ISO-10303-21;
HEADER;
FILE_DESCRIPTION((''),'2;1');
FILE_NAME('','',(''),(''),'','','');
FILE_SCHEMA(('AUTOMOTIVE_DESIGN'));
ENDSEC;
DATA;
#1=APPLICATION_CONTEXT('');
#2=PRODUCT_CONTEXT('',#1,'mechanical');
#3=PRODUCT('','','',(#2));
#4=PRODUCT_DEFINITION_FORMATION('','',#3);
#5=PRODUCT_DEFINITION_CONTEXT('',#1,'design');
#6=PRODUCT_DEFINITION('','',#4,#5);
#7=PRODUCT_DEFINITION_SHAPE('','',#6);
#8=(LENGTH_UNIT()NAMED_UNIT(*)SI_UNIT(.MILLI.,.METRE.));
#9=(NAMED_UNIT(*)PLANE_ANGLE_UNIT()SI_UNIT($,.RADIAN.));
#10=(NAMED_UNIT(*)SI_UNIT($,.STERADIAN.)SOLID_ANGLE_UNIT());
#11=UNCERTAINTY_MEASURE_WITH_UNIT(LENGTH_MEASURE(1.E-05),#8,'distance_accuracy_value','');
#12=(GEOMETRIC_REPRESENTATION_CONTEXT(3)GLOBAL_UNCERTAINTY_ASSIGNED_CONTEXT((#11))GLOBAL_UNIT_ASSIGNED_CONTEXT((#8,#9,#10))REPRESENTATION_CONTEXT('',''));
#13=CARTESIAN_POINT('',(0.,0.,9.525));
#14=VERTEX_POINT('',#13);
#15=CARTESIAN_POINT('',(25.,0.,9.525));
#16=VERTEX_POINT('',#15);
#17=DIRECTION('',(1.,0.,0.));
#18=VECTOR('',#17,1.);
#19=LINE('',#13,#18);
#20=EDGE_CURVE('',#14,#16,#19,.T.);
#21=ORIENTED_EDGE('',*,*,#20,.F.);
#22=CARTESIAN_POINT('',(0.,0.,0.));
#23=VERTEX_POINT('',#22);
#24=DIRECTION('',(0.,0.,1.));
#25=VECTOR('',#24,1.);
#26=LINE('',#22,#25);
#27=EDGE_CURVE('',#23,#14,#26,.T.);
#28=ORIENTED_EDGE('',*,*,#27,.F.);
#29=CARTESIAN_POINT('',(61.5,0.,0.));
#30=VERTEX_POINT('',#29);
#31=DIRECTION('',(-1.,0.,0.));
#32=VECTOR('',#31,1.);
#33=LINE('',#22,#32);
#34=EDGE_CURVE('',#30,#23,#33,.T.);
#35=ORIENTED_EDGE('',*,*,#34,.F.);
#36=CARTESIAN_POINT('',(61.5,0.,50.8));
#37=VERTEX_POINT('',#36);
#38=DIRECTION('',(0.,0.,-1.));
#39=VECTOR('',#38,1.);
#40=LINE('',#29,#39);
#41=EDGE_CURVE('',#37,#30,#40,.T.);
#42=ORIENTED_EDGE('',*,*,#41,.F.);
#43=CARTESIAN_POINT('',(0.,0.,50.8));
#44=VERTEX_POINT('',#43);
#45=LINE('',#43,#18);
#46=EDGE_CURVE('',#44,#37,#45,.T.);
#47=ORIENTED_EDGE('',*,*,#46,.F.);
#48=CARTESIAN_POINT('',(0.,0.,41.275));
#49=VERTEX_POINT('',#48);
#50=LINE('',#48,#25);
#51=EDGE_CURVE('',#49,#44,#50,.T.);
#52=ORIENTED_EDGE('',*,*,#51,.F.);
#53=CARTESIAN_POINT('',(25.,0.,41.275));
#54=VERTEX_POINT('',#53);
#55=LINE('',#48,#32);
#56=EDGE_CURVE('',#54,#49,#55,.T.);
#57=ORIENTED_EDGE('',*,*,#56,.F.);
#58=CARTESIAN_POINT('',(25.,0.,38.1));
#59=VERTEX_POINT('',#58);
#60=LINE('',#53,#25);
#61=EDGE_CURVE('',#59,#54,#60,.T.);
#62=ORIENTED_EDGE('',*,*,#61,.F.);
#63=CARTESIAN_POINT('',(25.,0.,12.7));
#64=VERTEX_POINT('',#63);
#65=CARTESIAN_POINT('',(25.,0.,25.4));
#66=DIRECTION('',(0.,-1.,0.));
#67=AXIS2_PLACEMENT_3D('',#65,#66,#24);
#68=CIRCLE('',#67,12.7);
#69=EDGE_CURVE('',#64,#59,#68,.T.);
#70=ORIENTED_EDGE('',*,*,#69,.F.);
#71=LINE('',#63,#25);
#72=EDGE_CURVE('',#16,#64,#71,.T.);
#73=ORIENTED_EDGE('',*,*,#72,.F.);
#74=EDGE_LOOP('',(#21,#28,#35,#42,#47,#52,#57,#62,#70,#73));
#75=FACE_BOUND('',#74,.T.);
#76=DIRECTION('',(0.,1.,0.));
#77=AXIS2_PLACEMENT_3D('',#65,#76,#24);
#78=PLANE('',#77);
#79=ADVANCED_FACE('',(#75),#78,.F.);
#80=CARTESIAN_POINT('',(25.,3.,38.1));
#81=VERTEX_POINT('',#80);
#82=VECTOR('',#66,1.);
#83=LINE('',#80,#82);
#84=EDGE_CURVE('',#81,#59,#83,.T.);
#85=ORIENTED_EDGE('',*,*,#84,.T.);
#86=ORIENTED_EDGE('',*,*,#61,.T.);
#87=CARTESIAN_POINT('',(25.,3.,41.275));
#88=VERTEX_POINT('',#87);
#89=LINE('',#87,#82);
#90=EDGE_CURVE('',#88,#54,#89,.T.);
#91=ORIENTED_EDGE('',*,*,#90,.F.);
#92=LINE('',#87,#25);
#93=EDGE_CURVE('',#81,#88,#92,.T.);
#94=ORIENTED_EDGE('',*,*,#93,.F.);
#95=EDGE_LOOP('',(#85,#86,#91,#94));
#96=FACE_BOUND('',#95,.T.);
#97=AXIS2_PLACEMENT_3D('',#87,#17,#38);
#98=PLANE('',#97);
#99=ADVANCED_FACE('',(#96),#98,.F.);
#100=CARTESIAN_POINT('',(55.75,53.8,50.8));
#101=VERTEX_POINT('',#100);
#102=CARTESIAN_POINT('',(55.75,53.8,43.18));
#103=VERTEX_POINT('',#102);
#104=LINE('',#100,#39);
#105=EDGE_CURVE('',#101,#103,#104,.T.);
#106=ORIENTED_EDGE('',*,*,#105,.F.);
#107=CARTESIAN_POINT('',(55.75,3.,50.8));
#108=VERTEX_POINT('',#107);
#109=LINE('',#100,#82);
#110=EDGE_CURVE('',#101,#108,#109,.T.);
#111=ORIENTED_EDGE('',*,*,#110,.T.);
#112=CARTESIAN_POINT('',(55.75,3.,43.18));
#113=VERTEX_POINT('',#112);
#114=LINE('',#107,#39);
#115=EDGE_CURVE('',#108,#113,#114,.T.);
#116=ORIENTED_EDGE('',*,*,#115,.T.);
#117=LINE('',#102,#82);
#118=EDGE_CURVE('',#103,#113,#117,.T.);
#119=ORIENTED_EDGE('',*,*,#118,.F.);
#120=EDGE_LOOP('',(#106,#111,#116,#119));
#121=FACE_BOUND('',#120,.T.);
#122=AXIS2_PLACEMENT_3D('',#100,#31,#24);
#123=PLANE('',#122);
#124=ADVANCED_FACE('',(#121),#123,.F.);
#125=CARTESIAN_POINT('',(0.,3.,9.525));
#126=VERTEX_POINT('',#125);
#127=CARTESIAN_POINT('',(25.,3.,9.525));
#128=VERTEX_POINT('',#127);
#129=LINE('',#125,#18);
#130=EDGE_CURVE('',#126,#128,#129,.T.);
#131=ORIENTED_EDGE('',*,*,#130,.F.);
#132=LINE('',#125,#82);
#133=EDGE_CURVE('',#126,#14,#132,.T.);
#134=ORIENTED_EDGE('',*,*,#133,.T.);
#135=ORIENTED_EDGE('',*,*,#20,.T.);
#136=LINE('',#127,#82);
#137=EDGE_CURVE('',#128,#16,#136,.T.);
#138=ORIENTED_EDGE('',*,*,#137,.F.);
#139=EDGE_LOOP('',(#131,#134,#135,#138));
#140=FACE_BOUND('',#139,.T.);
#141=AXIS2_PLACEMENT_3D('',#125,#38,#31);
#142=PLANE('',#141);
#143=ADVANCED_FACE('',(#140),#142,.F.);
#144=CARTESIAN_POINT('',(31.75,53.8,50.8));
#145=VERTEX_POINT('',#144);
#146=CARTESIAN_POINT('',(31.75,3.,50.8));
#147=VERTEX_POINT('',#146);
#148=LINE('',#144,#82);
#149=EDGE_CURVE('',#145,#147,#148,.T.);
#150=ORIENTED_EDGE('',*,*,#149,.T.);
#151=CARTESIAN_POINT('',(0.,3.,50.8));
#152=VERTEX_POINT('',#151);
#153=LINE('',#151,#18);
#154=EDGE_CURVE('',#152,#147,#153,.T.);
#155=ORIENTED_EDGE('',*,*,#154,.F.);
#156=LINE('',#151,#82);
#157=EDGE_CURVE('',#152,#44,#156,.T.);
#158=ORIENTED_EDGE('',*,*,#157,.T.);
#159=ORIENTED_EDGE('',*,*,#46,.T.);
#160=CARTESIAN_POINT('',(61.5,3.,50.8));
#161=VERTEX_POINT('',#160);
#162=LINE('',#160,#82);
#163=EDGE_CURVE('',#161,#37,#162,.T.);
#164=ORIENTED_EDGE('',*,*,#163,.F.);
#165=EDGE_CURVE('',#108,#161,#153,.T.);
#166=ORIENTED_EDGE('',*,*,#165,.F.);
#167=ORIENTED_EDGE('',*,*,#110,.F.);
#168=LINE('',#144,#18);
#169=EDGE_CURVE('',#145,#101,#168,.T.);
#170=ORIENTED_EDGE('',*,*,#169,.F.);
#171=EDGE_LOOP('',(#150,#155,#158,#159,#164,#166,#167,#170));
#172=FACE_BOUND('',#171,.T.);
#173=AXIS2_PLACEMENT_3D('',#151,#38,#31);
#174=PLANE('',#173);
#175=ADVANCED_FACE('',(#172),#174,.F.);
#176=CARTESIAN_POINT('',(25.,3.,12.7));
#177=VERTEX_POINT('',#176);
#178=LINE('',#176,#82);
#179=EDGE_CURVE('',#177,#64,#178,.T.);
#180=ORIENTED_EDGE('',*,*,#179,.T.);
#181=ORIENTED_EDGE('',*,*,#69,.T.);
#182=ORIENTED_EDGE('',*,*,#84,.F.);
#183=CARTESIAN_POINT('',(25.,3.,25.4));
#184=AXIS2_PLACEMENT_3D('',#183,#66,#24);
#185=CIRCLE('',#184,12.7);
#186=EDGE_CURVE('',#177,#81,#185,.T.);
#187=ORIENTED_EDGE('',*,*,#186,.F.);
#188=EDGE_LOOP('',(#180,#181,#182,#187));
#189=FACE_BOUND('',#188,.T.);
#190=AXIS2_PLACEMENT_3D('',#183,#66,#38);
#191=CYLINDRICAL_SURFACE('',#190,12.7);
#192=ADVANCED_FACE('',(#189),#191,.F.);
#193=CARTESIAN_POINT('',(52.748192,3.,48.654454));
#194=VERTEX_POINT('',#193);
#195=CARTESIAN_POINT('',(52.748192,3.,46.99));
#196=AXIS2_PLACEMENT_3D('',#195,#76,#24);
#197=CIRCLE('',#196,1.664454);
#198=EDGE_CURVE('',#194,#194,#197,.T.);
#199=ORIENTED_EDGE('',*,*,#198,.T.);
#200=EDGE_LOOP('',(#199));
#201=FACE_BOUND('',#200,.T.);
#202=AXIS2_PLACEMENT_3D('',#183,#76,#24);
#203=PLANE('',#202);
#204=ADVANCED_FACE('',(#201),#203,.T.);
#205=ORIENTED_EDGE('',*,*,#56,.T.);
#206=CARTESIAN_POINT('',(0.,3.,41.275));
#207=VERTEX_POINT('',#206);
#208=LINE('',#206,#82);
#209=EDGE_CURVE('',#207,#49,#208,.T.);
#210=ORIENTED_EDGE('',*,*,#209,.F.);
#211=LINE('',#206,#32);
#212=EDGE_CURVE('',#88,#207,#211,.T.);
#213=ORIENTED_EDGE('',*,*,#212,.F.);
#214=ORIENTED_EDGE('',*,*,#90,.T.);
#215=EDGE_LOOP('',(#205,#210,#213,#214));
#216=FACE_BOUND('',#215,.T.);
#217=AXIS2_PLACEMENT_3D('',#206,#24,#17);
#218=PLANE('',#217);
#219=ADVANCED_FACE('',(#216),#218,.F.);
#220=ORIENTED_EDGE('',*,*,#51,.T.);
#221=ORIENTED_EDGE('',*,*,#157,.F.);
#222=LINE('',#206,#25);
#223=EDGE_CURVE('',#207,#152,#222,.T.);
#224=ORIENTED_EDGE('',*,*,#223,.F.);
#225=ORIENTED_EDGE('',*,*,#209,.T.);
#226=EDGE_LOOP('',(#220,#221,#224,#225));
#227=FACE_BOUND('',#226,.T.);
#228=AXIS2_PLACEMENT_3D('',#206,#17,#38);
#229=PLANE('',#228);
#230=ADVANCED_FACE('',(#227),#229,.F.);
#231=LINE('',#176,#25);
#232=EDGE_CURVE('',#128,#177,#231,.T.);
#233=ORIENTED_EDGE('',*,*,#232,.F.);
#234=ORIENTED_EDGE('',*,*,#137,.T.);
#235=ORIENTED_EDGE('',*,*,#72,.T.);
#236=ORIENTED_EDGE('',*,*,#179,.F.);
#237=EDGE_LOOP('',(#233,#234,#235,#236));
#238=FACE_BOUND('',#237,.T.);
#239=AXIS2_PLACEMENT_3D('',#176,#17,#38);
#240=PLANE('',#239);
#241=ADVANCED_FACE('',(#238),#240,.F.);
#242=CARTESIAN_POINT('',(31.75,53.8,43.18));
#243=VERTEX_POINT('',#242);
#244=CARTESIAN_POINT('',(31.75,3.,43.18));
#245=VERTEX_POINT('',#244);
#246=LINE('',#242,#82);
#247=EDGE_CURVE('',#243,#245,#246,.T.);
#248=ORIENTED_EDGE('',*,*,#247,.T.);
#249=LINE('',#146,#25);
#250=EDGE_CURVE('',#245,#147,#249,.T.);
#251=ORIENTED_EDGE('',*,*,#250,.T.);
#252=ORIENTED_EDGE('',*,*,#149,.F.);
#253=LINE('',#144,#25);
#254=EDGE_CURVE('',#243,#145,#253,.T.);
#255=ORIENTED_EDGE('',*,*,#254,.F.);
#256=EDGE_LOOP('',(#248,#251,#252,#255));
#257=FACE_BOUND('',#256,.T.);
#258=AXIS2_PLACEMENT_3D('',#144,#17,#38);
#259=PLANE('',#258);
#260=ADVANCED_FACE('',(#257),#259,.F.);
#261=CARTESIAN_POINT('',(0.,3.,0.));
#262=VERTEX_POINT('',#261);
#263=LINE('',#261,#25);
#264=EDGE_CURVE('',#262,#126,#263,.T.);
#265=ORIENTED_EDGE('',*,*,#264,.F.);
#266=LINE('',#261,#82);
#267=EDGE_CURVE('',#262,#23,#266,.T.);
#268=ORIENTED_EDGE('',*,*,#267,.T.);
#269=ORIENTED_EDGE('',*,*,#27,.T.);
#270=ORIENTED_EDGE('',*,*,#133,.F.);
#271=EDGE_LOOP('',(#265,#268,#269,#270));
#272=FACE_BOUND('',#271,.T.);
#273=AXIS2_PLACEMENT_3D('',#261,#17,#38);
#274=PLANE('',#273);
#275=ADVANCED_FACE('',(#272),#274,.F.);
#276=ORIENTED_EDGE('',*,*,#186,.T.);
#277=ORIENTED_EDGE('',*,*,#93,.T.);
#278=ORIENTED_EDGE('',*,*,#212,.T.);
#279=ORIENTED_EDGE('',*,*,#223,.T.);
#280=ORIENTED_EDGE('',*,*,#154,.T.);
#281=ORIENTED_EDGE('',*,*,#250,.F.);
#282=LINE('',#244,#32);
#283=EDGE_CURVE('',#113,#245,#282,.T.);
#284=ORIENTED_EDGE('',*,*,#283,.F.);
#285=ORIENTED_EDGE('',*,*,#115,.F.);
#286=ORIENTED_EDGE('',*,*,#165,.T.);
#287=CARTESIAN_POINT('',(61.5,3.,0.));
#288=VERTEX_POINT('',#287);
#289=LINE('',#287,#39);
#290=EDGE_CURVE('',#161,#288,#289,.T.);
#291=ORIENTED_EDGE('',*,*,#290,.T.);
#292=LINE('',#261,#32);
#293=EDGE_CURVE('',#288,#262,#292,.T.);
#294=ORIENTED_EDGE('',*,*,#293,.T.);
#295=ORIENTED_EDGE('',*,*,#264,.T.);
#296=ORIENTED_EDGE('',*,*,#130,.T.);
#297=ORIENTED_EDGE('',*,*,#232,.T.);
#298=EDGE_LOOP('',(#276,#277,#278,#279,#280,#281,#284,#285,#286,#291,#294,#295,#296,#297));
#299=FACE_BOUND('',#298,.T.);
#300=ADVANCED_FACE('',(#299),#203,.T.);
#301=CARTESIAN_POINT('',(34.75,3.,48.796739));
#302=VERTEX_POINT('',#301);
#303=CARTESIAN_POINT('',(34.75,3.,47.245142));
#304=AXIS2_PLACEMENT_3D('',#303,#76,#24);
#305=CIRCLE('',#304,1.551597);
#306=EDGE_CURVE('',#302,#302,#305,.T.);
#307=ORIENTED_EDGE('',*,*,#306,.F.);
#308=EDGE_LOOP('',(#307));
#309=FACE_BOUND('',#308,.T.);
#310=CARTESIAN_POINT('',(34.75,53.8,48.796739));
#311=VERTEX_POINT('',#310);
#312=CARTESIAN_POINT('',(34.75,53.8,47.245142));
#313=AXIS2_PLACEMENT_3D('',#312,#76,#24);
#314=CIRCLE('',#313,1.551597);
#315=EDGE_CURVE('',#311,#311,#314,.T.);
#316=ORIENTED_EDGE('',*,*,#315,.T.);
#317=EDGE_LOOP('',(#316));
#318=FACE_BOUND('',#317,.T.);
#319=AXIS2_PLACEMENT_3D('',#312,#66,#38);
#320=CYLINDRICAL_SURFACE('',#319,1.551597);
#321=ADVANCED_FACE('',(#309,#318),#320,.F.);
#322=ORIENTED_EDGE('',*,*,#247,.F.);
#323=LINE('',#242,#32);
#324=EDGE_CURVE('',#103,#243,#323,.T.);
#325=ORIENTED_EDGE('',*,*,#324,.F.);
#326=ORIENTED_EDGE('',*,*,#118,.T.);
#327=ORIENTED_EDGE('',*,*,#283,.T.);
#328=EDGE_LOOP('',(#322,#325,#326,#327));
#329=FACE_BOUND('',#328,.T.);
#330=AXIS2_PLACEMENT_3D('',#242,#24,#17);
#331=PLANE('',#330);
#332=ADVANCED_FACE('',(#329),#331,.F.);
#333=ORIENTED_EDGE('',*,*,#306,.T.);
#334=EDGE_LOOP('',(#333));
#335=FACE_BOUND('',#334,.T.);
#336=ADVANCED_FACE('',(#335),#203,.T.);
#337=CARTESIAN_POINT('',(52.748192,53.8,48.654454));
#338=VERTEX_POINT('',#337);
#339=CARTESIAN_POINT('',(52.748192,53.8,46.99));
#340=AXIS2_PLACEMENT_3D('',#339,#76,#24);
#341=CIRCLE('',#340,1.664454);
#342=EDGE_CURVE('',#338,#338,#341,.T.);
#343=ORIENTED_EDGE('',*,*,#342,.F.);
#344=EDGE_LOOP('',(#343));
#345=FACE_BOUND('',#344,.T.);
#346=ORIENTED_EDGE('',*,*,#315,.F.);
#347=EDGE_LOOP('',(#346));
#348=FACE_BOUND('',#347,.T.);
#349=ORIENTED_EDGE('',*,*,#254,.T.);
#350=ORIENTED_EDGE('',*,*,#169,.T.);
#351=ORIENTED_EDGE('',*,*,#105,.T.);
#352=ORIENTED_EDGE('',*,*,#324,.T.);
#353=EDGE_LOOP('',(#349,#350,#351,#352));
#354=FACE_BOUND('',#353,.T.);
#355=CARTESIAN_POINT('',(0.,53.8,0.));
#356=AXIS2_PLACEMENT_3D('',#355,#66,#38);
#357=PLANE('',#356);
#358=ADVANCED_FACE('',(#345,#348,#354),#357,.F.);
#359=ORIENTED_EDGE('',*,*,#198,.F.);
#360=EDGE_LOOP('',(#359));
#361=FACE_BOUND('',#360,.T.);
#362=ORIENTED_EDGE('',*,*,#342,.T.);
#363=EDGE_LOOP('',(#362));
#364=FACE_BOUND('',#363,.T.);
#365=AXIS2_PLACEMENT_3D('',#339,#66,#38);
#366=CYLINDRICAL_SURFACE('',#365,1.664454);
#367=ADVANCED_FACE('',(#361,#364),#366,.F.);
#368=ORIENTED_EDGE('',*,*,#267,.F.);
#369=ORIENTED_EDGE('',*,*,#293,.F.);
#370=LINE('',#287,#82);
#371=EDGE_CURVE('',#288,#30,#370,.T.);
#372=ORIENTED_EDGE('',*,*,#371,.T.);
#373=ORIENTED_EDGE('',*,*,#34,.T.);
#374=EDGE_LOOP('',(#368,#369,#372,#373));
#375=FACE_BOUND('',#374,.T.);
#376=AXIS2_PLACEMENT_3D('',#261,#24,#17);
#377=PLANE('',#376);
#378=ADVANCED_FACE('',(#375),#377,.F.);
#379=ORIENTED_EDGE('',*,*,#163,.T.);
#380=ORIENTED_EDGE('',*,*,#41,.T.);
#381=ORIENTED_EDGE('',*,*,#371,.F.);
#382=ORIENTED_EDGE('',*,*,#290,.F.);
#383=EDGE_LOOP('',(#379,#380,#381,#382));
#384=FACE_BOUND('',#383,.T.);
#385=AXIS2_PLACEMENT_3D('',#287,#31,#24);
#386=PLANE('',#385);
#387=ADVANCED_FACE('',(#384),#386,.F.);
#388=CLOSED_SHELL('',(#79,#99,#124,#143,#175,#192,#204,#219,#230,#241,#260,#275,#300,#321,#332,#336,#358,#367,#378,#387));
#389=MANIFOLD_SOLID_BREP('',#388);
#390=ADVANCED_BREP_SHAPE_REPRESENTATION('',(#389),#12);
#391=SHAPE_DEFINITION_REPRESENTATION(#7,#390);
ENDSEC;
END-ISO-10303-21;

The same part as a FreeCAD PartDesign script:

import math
import FreeCAD as App
import Part
import Sketcher

V = App.Vector
Q = App.Units.Quantity


def add_polygon(sketch, points):
    """Adds a closed chain of lines whose ends are joined by coincident constraints."""
    first, n = sketch.GeometryCount, len(points)
    for a, b in zip(points, points[1:] + points[:1]):
        sketch.addGeometry(Part.LineSegment(App.Vector(*a, 0), App.Vector(*b, 0)), False)
    for i in range(n):
        sketch.addConstraint(Sketcher.Constraint("Coincident", first + i, 2, first + (i + 1) % n, 1))

doc = App.newDocument("Part")
body = doc.addObject("PartDesign::Body", "Body")

sketch1 = body.newObject("Sketcher::SketchObject", "Sketch")
sketch1.AttachmentSupport = (doc.getObject("XZ_Plane"), [""])
sketch1.MapMode = "FlatFace"
sketch1.addGeometry(Part.LineSegment(V(61.5, 0, 0), V(0, 0, 0)), False)
sketch1.addGeometry(Part.LineSegment(V(0, 0, 0), V(0, 9.5, 0)), False)
sketch1.addGeometry(Part.LineSegment(V(0, 9.5, 0), V(25, 9.5, 0)), False)
sketch1.addGeometry(Part.LineSegment(V(25, 9.5, 0), V(25, 12.7, 0)), False)
sketch1.addGeometry(Part.ArcOfCircle(Part.Circle(V(25, 25.4, 0), V(0, 0, 1), 12.7), math.radians(-90), math.radians(90)), False)
sketch1.addGeometry(Part.LineSegment(V(25, 38.1, 0), V(25, 41.3, 0)), False)
sketch1.addGeometry(Part.LineSegment(V(25, 41.3, 0), V(0, 41.3, 0)), False)
sketch1.addGeometry(Part.LineSegment(V(0, 41.3, 0), V(0, 50.8, 0)), False)
sketch1.addGeometry(Part.LineSegment(V(0, 50.8, 0), V(61.5, 50.8, 0)), False)
sketch1.addGeometry(Part.LineSegment(V(61.5, 50.8, 0), V(61.5, 0, 0)), False)
sketch1.addConstraint(Sketcher.Constraint("Coincident", 0, 2, 1, 1))
sketch1.addConstraint(Sketcher.Constraint("Coincident", 1, 2, 2, 1))
sketch1.addConstraint(Sketcher.Constraint("Coincident", 2, 2, 3, 1))
sketch1.addConstraint(Sketcher.Constraint("Coincident", 3, 2, 4, 1))
sketch1.addConstraint(Sketcher.Constraint("Coincident", 4, 2, 5, 1))
sketch1.addConstraint(Sketcher.Constraint("Coincident", 5, 2, 6, 1))
sketch1.addConstraint(Sketcher.Constraint("Coincident", 6, 2, 7, 1))
sketch1.addConstraint(Sketcher.Constraint("Coincident", 7, 2, 8, 1))
sketch1.addConstraint(Sketcher.Constraint("Coincident", 8, 2, 9, 1))
sketch1.addConstraint(Sketcher.Constraint("Coincident", 9, 2, 0, 1))
sketch1.addConstraint(Sketcher.Constraint("Horizontal", 0))
sketch1.addConstraint(Sketcher.Constraint("Vertical", 1))
sketch1.addConstraint(Sketcher.Constraint("Horizontal", 2))
sketch1.addConstraint(Sketcher.Constraint("Vertical", 3))
sketch1.addConstraint(Sketcher.Constraint("Vertical", 5))
sketch1.addConstraint(Sketcher.Constraint("Horizontal", 6))
sketch1.addConstraint(Sketcher.Constraint("Vertical", 7))
sketch1.addConstraint(Sketcher.Constraint("Horizontal", 8))
sketch1.addConstraint(Sketcher.Constraint("Vertical", 9))
sketch1.addConstraint(Sketcher.Constraint("Coincident", 0, 2, -1, 1))
sketch1.addConstraint(Sketcher.Constraint("PointOnObject", 6, 2, -2))
sketch1.addConstraint(Sketcher.Constraint("Vertical", 4, 3, 2, 2))
sketch1.addConstraint(Sketcher.Constraint("Vertical", 3, 2, 4, 2))
sketch1.addConstraint(Sketcher.Constraint("Equal", 3, 5))
sketch1.addConstraint(Sketcher.Constraint("Equal", 1, 7))
sketch1.addConstraint(Sketcher.Constraint("Radius", 4, Q("0.5 in")))
sketch1.addConstraint(Sketcher.Constraint("DistanceY", 9, 2, 9, 1, Q("2 in")))
sketch1.addConstraint(Sketcher.Constraint("DistanceY", 1, 1, 1, 2, Q("0.375 in")))
sketch1.addConstraint(Sketcher.Constraint("DistanceX", 0, 2, 0, 1, 61.5))
sketch1.addConstraint(Sketcher.Constraint("DistanceX", 2, 1, 2, 2, 25.0))
pad1 = body.newObject("PartDesign::Pad", "Pad")
pad1.Profile = sketch1
pad1.Length = 3
pad1.Reversed = True

sketch2 = body.newObject("Sketcher::SketchObject", "Sketch001")
sketch2.AttachmentSupport = (doc.getObject("XZ_Plane"), [""])
sketch2.MapMode = "FlatFace"
sketch2.AttachmentOffset = App.Placement(V(0, 0, -3), App.Rotation())
add_polygon(sketch2, [(31.8, 43.2), (31.8, 50.8), (55.8, 50.8), (55.8, 43.2)])
sketch2.addGeometry(Part.Circle(V(34.8, 47.2, 0), V(0, 0, 1), 1.6), False)
sketch2.addGeometry(Part.Circle(V(52.7, 47, 0), V(0, 0, 1), 1.7), False)
sketch2.addConstraint(Sketcher.Constraint("Vertical", 0))
sketch2.addConstraint(Sketcher.Constraint("Horizontal", 1))
sketch2.addConstraint(Sketcher.Constraint("Vertical", 2))
sketch2.addConstraint(Sketcher.Constraint("Horizontal", 3))
sketch2.addConstraint(Sketcher.Constraint("DistanceY", 0, 1, 0, 2, Q("0.3 in")))
sketch2.addConstraint(Sketcher.Constraint("DistanceY", -1, 1, 0, 2, Q("2 in")))
sketch2.addConstraint(Sketcher.Constraint("DistanceY", -1, 1, 5, 3, Q("1.85 in")))
sketch2.addConstraint(Sketcher.Constraint("DistanceX", -1, 1, 0, 2, Q("1.25 in")))
sketch2.addConstraint(Sketcher.Constraint("Diameter", 5, 3.328908))
sketch2.addConstraint(Sketcher.Constraint("Diameter", 4, 3.103194))
sketch2.addConstraint(Sketcher.Constraint("DistanceX", 1, 1, 1, 2, 24.0))
sketch2.addConstraint(Sketcher.Constraint("DistanceX", -1, 1, 4, 3, 34.75))
sketch2.addConstraint(Sketcher.Constraint("DistanceX", -1, 1, 5, 3, 52.748192))
sketch2.addConstraint(Sketcher.Constraint("DistanceY", -1, 1, 4, 3, 47.245142))
pad2 = body.newObject("PartDesign::Pad", "Pad001")
pad2.Profile = sketch2
pad2.Length = Q("2 in")
pad2.Reversed = True

doc.recompute()
